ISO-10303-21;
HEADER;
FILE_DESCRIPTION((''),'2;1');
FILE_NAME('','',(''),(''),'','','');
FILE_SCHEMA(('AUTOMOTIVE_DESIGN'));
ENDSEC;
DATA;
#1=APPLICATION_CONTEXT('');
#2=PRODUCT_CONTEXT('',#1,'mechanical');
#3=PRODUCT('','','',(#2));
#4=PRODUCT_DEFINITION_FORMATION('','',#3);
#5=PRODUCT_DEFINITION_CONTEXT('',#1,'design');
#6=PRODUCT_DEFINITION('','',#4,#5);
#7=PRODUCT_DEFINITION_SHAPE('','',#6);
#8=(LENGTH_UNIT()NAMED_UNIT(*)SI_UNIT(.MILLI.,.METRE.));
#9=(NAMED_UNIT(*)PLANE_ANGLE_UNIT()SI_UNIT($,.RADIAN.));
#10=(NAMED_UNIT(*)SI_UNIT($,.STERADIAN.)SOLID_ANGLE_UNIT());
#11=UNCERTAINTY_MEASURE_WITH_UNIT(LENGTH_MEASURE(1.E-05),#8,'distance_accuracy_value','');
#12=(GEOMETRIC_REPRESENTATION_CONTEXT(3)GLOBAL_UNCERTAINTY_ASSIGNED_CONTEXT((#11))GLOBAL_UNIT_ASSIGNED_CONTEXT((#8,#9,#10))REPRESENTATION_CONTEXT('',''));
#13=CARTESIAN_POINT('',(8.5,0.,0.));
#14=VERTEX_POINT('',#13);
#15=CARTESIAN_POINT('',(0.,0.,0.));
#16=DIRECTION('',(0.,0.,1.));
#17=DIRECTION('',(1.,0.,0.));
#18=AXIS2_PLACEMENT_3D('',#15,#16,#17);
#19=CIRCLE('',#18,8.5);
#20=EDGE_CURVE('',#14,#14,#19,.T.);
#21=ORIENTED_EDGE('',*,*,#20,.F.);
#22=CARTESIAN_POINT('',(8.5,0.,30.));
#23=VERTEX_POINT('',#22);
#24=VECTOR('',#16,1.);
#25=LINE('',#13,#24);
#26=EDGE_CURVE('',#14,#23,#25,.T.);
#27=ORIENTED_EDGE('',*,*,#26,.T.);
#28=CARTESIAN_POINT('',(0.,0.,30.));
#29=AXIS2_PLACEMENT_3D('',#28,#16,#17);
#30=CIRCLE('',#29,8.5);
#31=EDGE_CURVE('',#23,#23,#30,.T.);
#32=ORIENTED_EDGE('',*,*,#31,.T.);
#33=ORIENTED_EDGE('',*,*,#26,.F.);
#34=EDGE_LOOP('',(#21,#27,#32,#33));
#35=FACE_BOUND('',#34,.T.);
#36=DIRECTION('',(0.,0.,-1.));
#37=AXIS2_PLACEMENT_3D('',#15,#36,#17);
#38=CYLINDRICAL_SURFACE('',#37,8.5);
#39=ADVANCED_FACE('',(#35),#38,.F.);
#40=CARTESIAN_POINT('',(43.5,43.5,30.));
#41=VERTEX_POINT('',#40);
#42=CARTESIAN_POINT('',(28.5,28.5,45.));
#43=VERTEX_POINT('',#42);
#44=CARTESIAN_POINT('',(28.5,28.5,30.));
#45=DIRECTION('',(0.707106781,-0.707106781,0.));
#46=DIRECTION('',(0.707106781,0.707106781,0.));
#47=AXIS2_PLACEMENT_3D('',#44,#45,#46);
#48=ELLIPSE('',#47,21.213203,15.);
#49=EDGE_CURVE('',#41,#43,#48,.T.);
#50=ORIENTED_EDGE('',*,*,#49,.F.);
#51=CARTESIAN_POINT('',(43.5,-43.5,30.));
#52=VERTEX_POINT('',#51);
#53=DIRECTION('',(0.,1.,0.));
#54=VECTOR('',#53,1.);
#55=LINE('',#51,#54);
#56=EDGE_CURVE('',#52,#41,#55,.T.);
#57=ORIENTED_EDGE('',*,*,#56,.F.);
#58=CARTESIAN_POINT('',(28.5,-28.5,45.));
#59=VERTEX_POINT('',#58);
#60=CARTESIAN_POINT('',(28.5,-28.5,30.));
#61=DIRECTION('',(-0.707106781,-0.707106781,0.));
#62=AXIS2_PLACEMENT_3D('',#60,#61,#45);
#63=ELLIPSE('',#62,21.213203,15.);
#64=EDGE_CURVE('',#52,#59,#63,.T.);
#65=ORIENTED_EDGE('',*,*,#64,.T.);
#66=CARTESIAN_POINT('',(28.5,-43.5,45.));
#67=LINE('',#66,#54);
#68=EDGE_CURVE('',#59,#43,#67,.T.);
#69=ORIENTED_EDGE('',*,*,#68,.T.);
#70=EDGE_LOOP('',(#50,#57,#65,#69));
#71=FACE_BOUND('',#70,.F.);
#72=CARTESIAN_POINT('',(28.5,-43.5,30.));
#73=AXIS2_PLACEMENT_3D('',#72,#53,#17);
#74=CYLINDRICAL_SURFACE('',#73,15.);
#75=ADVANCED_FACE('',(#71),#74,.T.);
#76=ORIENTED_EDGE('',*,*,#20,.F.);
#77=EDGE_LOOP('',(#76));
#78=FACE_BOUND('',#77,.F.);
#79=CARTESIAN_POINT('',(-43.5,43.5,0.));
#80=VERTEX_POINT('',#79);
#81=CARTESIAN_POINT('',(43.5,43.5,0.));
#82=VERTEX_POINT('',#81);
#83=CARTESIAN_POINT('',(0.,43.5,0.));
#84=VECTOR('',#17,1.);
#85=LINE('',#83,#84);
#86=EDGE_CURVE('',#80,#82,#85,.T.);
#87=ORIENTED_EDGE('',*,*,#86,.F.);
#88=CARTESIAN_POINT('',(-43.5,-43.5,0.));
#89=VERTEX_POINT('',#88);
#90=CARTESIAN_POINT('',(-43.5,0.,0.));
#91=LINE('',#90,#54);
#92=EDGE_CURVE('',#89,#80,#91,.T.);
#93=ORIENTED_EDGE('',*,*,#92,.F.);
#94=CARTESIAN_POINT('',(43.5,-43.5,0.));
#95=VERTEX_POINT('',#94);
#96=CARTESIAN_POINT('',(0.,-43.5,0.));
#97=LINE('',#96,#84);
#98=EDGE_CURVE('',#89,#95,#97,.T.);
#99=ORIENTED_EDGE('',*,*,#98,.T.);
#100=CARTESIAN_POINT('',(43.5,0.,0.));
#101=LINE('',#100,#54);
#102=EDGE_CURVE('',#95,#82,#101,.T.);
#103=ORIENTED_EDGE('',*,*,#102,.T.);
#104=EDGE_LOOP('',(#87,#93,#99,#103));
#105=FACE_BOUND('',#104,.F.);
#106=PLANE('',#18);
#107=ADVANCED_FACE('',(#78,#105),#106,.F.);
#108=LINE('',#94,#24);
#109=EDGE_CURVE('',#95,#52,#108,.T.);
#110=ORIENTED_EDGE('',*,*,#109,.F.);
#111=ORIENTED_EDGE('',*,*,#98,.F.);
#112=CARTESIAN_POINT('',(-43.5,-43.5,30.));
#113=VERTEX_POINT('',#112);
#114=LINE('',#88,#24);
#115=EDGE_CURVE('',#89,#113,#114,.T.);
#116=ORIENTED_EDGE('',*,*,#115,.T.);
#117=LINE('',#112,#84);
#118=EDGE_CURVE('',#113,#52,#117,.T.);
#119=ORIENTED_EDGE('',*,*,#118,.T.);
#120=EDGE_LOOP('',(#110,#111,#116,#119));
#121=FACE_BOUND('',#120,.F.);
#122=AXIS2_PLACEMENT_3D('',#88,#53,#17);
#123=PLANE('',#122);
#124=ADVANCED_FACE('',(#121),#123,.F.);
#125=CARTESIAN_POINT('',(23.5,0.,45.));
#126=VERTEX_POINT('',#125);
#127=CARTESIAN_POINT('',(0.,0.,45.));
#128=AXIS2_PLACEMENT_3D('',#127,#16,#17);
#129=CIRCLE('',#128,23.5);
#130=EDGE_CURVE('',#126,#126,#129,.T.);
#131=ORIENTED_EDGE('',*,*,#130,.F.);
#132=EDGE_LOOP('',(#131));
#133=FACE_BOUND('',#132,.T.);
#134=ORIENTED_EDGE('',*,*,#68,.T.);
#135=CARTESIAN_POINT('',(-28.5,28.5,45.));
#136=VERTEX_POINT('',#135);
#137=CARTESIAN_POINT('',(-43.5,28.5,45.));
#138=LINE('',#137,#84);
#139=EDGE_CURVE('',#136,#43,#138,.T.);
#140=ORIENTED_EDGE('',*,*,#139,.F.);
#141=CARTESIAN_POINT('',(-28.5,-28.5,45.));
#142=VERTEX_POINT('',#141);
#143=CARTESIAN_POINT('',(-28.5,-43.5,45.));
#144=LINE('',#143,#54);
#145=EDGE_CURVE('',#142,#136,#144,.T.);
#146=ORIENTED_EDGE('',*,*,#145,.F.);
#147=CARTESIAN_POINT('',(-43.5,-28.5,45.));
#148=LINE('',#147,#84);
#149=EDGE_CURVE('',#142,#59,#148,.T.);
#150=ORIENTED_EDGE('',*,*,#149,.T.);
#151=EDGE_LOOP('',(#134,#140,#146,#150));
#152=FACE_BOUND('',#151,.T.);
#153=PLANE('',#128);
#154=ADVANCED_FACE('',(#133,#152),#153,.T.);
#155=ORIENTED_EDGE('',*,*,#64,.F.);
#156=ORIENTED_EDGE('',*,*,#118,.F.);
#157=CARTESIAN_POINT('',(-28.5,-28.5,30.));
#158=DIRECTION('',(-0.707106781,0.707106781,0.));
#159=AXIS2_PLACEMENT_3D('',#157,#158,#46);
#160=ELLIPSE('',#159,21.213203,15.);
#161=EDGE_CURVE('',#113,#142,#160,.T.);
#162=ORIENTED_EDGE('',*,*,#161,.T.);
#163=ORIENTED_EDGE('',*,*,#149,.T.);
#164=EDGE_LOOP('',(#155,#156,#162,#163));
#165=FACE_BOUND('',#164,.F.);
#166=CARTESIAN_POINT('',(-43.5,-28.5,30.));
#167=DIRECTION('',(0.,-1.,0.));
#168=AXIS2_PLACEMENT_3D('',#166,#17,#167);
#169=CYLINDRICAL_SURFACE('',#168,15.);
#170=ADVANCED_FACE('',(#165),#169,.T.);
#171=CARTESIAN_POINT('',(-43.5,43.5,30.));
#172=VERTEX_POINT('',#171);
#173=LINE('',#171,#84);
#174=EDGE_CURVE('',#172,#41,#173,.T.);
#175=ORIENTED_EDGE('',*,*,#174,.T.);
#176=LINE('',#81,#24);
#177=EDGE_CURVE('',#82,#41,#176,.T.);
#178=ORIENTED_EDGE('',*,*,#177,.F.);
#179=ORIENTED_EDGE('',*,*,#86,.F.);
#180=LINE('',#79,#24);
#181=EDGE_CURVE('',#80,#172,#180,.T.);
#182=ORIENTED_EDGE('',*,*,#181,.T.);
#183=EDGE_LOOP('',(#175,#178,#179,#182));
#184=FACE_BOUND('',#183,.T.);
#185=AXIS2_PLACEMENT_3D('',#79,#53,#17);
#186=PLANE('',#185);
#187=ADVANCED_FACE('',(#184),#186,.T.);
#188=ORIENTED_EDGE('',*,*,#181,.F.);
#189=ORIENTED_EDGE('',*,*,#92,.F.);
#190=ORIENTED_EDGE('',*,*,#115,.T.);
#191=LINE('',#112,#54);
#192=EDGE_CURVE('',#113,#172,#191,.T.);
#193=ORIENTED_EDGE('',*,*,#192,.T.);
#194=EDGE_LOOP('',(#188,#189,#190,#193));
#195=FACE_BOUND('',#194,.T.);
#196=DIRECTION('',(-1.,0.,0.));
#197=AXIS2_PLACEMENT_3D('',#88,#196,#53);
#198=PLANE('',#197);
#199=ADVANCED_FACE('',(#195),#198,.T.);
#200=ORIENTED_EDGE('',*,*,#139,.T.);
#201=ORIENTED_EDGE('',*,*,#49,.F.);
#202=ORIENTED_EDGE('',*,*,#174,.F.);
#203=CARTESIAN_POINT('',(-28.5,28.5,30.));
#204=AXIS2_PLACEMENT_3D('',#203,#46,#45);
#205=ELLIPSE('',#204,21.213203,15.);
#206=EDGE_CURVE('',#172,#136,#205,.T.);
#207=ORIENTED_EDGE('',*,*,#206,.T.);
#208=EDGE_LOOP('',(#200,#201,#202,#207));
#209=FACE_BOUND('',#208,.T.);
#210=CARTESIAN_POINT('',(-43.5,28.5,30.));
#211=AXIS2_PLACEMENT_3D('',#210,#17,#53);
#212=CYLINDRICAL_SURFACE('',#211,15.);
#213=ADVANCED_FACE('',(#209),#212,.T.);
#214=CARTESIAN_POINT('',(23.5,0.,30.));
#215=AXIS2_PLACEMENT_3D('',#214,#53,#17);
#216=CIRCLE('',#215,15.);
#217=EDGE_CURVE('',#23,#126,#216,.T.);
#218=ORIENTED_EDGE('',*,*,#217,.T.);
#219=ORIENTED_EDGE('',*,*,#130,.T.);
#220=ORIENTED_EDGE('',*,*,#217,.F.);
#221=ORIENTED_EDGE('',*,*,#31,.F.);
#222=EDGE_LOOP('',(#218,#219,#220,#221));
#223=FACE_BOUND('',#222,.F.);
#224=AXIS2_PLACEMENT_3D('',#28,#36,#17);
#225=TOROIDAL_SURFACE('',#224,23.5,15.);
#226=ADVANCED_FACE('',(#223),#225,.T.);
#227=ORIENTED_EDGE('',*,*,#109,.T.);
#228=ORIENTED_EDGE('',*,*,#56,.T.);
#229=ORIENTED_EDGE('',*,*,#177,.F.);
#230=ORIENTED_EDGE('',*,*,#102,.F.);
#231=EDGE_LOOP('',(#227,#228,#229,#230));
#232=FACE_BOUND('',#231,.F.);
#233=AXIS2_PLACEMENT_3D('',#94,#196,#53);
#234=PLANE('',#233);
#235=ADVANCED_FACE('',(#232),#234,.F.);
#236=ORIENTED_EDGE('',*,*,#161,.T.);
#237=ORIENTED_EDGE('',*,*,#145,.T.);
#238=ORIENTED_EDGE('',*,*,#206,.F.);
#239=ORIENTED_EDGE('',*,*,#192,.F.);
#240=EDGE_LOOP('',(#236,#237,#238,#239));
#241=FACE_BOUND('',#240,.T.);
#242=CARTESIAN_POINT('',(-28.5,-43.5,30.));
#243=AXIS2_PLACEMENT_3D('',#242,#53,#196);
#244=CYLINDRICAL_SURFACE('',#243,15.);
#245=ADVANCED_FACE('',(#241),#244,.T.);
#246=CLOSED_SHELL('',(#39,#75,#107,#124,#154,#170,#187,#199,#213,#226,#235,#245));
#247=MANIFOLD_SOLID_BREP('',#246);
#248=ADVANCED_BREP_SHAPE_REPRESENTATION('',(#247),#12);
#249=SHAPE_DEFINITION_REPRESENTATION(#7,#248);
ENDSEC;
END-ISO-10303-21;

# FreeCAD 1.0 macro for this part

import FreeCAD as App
import Part
import Sketcher

V = App.Vector
Q = App.Units.Quantity


def edges_at(feature, points):
    """Names of the edges that pass closest to the given points."""
    edges = feature.Shape.Edges
    near = lambda p: min(range(len(edges)), key=lambda i: edges[i].distToShape(Part.Vertex(*p))[0])
    return sorted({f"Edge{near(p) + 1}" for p in points})

doc = App.newDocument("Part")
body = doc.addObject("PartDesign::Body", "Body")

# Sketch on XY plane
sketch1 = doc.addObject("Sketcher::SketchObject", "Sketch")
body.addObject(sketch1)
sketch1.AttachmentSupport = (doc.XY_Plane, [""])
sketch1.MapMode = "FlatFace"
sketch1.addGeometry([
    Part.LineSegment(V(-44, 44, 0), V(-44, -44, 0)),  # 0
    Part.LineSegment(V(-44, -44, 0), V(44, -44, 0)),  # 1
    Part.LineSegment(V(44, -44, 0), V(44, 44, 0)),  # 2
    Part.LineSegment(V(44, 44, 0), V(-44, 44, 0)),  # 3
    Part.Circle(V(0, 0, 0), V(0, 0, 1), 8),  # 4
], False)
sketch1.addConstraint([
    Sketcher.Constraint("Coincident", 0, 2, 1, 1),
    Sketcher.Constraint("Coincident", 1, 2, 2, 1),
    Sketcher.Constraint("Coincident", 2, 2, 3, 1),
    Sketcher.Constraint("Coincident", 3, 2, 0, 1),
    Sketcher.Constraint("Vertical", 0),
    Sketcher.Constraint("Horizontal", 1),
    Sketcher.Constraint("Vertical", 2),
    Sketcher.Constraint("Horizontal", 3),
    Sketcher.Constraint("Coincident", 4, 3, -1, 1),
    Sketcher.Constraint("Symmetric", 0, 2, 2, 2, -1, 1),
    Sketcher.Constraint("Equal", 3, 0),
    Sketcher.Constraint("Diameter", 4, Q("17 mm")),
    Sketcher.Constraint("DistanceX", 1, 1, 1, 2, Q("87 mm")),
])
pad1 = doc.addObject("PartDesign::Pad", "Pad")
body.addObject(pad1)
pad1.Profile = sketch1
pad1.Length = 45
doc.recompute()

fillet = doc.addObject("PartDesign::Fillet", "Fillet")
body.addObject(fillet)
fillet.Base = (pad1, edges_at(pad1, [
    (0, -43.5, 45),
    (43.5, 0, 45),
    (0, 43.5, 45),
    (-43.5, 0, 45),
    (-8.5, 0, 45),
]))
fillet.Radius = 15

doc.recompute()
